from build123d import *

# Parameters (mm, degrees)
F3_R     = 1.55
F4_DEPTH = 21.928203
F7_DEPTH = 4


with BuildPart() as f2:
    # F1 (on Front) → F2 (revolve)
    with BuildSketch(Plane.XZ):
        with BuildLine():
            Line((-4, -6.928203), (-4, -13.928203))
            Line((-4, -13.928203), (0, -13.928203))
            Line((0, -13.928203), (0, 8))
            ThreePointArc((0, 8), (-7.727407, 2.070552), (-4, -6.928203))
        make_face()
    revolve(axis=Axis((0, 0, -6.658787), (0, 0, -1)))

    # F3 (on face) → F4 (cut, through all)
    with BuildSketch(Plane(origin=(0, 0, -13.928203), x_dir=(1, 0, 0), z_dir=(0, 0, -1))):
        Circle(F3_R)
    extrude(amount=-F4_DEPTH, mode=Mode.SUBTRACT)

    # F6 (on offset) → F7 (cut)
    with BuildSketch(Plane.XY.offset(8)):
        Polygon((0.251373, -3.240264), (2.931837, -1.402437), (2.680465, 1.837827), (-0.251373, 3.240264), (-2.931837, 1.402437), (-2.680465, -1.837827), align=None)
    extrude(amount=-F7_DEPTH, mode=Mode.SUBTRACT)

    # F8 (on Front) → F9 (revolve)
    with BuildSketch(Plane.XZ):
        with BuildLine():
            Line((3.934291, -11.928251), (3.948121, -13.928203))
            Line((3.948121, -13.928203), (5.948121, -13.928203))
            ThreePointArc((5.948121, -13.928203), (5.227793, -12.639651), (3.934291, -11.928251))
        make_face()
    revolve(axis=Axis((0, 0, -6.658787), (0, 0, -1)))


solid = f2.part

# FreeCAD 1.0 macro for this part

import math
import FreeCAD as App
import Part
import Sketcher

V = App.Vector
Q = App.Units.Quantity


def add_polygon(sketch, points):
    """Adds a closed chain of lines whose ends are joined by coincident constraints."""
    first, n = sketch.GeometryCount, len(points)
    for a, b in zip(points, points[1:] + points[:1]):
        sketch.addGeometry(Part.LineSegment(App.Vector(*a, 0), App.Vector(*b, 0)), False)
    for i in range(n):
        sketch.addConstraint(Sketcher.Constraint("Coincident", first + i, 2, first + (i + 1) % n, 1))

doc = App.newDocument("Part")
body = doc.addObject("PartDesign::Body", "Body")

sketch1 = doc.addObject("Sketcher::SketchObject", "Sketch")
body.addObject(sketch1)
sketch1.AttachmentSupport = (doc.XZ_Plane, [""])
sketch1.MapMode = "FlatFace"
sketch1.addGeometry([
    Part.LineSegment(V(-4, -6.9, 0), V(-4, -13.9, 0)),
    Part.LineSegment(V(-4, -13.9, 0), V(0, -13.9, 0)),
    Part.LineSegment(V(0, -13.9, 0), V(0, 8, 0)),
    Part.ArcOfCircle(Part.Circle(V(0, 0, 0), V(0, 0, 1), 8), math.radians(90), math.radians(240)),
], False)
sketch1.addConstraint([
    Sketcher.Constraint("Coincident", 0, 2, 1, 1),
    Sketcher.Constraint("Coincident", 1, 2, 2, 1),
    Sketcher.Constraint("Coincident", 2, 2, 3, 1),
    Sketcher.Constraint("Coincident", 3, 2, 0, 1),
    Sketcher.Constraint("Vertical", 0),
    Sketcher.Constraint("Horizontal", 1),
    Sketcher.Constraint("Vertical", 2),
    Sketcher.Constraint("Coincident", 3, 3, -1, 1),
    Sketcher.Constraint("PointOnObject", 1, 2, -2),
    Sketcher.Constraint("Radius", 3, Q("8 mm")),
    Sketcher.Constraint("DistanceX", 1, 1, 1, 2, Q("4 mm")),
    Sketcher.Constraint("DistanceY", 0, 2, 0, 1, Q("7 mm")),
])
revolution = doc.addObject("PartDesign::Revolution", "Revolution")
body.addObject(revolution)
revolution.Profile = sketch1
revolution.ReferenceAxis = (sketch1, ["V_Axis"])
revolution.Angle = 360

sketch2 = doc.addObject("Sketcher::SketchObject", "Sketch001")
body.addObject(sketch2)
sketch2.AttachmentSupport = (doc.XY_Plane, [""])
sketch2.MapMode = "FlatFace"
sketch2.AttachmentOffset = App.Placement(V(0, 0, -13.928203), App.Rotation())
sketch2.addGeometry(Part.Circle(V(0, 0, 0), V(0, 0, 1), 1.6), False)
sketch2.addConstraint([
    Sketcher.Constraint("Coincident", 0, 3, -1, 1),
    Sketcher.Constraint("Diameter", 0, Q("3.1 mm")),
])
pocket1 = doc.addObject("PartDesign::Pocket", "Pocket")
body.addObject(pocket1)
pocket1.Profile = sketch2
pocket1.Type = "ThroughAll"
pocket1.Reversed = True

sketch3 = doc.addObject("Sketcher::SketchObject", "Sketch002")
body.addObject(sketch3)
sketch3.AttachmentSupport = (doc.XY_Plane, [""])
sketch3.MapMode = "FlatFace"
sketch3.AttachmentOffset = App.Placement(V(0, 0, 8), App.Rotation())
add_polygon(sketch3, [(0.3, -3.2), (2.9, -1.4), (2.7, 1.8), (-0.3, 3.2), (-2.9, 1.4), (-2.7, -1.8)])
sketch3.addConstraint([
    Sketcher.Constraint("Symmetric", 0, 2, 3, 2, -1, 1),
    Sketcher.Constraint("Symmetric", 1, 2, 4, 2, -1, 1),
    Sketcher.Constraint("Symmetric", 2, 2, 5, 2, -1, 1),
    Sketcher.Constraint("Equal", 0, 1),
    Sketcher.Constraint("Equal", 1, 2),
    Sketcher.Constraint("Distance", 0, Q("3.249999 mm")),
    Sketcher.Constraint("DistanceY", 0, 2, 2, 2, Q("4.642701 mm")),
    Sketcher.Constraint("DistanceX", 3, 2, 1, 2, Q("5.612302 mm")),
    Sketcher.Constraint("DistanceX", 1, 2, 0, 2, Q("0.251372 mm")),
])
pocket2 = doc.addObject("PartDesign::Pocket", "Pocket001")
body.addObject(pocket2)
pocket2.Profile = sketch3
pocket2.Length = 4

sketch4 = doc.addObject("Sketcher::SketchObject", "Sketch003")
body.addObject(sketch4)
sketch4.AttachmentSupport = (doc.XZ_Plane, [""])
sketch4.MapMode = "FlatFace"
sketch4.addGeometry([
    Part.LineSegment(V(3.9, -11.9, 0), V(3.9, -13.9, 0)),
    Part.LineSegment(V(3.9, -13.9, 0), V(5.9, -13.9, 0)),
    Part.ArcOfCircle(Part.Circle(V(3.3, -14.5, 0), V(0, 0, 1), 2.7), math.radians(13), math.radians(77)),
], False)
sketch4.addConstraint([
    Sketcher.Constraint("Coincident", 0, 2, 1, 1),
    Sketcher.Constraint("Coincident", 1, 2, 2, 1),
    Sketcher.Constraint("Coincident", 2, 2, 0, 1),
    Sketcher.Constraint("Horizontal", 1),
    Sketcher.Constraint("DistanceX", 1, 1, 1, 2, Q("2 mm")),
    Sketcher.Constraint("Distance", 0, Q("2 mm")),
    Sketcher.Constraint("Radius", 2, Q("2.679144 mm")),
    Sketcher.Constraint("DistanceY", 2, 3, -1, 1, Q("14.540631 mm")),
    Sketcher.Constraint("DistanceX", -1, 1, 0, 2, Q("3.948121 mm")),
    Sketcher.Constraint("DistanceX", -1, 1, 2, 2, Q("3.934291 mm")),
])
revolution2 = doc.addObject("PartDesign::Revolution", "Revolution001")
body.addObject(revolution2)
revolution2.Profile = sketch4
revolution2.ReferenceAxis = (sketch4, ["V_Axis"])
revolution2.Angle = 360

doc.recompute()
